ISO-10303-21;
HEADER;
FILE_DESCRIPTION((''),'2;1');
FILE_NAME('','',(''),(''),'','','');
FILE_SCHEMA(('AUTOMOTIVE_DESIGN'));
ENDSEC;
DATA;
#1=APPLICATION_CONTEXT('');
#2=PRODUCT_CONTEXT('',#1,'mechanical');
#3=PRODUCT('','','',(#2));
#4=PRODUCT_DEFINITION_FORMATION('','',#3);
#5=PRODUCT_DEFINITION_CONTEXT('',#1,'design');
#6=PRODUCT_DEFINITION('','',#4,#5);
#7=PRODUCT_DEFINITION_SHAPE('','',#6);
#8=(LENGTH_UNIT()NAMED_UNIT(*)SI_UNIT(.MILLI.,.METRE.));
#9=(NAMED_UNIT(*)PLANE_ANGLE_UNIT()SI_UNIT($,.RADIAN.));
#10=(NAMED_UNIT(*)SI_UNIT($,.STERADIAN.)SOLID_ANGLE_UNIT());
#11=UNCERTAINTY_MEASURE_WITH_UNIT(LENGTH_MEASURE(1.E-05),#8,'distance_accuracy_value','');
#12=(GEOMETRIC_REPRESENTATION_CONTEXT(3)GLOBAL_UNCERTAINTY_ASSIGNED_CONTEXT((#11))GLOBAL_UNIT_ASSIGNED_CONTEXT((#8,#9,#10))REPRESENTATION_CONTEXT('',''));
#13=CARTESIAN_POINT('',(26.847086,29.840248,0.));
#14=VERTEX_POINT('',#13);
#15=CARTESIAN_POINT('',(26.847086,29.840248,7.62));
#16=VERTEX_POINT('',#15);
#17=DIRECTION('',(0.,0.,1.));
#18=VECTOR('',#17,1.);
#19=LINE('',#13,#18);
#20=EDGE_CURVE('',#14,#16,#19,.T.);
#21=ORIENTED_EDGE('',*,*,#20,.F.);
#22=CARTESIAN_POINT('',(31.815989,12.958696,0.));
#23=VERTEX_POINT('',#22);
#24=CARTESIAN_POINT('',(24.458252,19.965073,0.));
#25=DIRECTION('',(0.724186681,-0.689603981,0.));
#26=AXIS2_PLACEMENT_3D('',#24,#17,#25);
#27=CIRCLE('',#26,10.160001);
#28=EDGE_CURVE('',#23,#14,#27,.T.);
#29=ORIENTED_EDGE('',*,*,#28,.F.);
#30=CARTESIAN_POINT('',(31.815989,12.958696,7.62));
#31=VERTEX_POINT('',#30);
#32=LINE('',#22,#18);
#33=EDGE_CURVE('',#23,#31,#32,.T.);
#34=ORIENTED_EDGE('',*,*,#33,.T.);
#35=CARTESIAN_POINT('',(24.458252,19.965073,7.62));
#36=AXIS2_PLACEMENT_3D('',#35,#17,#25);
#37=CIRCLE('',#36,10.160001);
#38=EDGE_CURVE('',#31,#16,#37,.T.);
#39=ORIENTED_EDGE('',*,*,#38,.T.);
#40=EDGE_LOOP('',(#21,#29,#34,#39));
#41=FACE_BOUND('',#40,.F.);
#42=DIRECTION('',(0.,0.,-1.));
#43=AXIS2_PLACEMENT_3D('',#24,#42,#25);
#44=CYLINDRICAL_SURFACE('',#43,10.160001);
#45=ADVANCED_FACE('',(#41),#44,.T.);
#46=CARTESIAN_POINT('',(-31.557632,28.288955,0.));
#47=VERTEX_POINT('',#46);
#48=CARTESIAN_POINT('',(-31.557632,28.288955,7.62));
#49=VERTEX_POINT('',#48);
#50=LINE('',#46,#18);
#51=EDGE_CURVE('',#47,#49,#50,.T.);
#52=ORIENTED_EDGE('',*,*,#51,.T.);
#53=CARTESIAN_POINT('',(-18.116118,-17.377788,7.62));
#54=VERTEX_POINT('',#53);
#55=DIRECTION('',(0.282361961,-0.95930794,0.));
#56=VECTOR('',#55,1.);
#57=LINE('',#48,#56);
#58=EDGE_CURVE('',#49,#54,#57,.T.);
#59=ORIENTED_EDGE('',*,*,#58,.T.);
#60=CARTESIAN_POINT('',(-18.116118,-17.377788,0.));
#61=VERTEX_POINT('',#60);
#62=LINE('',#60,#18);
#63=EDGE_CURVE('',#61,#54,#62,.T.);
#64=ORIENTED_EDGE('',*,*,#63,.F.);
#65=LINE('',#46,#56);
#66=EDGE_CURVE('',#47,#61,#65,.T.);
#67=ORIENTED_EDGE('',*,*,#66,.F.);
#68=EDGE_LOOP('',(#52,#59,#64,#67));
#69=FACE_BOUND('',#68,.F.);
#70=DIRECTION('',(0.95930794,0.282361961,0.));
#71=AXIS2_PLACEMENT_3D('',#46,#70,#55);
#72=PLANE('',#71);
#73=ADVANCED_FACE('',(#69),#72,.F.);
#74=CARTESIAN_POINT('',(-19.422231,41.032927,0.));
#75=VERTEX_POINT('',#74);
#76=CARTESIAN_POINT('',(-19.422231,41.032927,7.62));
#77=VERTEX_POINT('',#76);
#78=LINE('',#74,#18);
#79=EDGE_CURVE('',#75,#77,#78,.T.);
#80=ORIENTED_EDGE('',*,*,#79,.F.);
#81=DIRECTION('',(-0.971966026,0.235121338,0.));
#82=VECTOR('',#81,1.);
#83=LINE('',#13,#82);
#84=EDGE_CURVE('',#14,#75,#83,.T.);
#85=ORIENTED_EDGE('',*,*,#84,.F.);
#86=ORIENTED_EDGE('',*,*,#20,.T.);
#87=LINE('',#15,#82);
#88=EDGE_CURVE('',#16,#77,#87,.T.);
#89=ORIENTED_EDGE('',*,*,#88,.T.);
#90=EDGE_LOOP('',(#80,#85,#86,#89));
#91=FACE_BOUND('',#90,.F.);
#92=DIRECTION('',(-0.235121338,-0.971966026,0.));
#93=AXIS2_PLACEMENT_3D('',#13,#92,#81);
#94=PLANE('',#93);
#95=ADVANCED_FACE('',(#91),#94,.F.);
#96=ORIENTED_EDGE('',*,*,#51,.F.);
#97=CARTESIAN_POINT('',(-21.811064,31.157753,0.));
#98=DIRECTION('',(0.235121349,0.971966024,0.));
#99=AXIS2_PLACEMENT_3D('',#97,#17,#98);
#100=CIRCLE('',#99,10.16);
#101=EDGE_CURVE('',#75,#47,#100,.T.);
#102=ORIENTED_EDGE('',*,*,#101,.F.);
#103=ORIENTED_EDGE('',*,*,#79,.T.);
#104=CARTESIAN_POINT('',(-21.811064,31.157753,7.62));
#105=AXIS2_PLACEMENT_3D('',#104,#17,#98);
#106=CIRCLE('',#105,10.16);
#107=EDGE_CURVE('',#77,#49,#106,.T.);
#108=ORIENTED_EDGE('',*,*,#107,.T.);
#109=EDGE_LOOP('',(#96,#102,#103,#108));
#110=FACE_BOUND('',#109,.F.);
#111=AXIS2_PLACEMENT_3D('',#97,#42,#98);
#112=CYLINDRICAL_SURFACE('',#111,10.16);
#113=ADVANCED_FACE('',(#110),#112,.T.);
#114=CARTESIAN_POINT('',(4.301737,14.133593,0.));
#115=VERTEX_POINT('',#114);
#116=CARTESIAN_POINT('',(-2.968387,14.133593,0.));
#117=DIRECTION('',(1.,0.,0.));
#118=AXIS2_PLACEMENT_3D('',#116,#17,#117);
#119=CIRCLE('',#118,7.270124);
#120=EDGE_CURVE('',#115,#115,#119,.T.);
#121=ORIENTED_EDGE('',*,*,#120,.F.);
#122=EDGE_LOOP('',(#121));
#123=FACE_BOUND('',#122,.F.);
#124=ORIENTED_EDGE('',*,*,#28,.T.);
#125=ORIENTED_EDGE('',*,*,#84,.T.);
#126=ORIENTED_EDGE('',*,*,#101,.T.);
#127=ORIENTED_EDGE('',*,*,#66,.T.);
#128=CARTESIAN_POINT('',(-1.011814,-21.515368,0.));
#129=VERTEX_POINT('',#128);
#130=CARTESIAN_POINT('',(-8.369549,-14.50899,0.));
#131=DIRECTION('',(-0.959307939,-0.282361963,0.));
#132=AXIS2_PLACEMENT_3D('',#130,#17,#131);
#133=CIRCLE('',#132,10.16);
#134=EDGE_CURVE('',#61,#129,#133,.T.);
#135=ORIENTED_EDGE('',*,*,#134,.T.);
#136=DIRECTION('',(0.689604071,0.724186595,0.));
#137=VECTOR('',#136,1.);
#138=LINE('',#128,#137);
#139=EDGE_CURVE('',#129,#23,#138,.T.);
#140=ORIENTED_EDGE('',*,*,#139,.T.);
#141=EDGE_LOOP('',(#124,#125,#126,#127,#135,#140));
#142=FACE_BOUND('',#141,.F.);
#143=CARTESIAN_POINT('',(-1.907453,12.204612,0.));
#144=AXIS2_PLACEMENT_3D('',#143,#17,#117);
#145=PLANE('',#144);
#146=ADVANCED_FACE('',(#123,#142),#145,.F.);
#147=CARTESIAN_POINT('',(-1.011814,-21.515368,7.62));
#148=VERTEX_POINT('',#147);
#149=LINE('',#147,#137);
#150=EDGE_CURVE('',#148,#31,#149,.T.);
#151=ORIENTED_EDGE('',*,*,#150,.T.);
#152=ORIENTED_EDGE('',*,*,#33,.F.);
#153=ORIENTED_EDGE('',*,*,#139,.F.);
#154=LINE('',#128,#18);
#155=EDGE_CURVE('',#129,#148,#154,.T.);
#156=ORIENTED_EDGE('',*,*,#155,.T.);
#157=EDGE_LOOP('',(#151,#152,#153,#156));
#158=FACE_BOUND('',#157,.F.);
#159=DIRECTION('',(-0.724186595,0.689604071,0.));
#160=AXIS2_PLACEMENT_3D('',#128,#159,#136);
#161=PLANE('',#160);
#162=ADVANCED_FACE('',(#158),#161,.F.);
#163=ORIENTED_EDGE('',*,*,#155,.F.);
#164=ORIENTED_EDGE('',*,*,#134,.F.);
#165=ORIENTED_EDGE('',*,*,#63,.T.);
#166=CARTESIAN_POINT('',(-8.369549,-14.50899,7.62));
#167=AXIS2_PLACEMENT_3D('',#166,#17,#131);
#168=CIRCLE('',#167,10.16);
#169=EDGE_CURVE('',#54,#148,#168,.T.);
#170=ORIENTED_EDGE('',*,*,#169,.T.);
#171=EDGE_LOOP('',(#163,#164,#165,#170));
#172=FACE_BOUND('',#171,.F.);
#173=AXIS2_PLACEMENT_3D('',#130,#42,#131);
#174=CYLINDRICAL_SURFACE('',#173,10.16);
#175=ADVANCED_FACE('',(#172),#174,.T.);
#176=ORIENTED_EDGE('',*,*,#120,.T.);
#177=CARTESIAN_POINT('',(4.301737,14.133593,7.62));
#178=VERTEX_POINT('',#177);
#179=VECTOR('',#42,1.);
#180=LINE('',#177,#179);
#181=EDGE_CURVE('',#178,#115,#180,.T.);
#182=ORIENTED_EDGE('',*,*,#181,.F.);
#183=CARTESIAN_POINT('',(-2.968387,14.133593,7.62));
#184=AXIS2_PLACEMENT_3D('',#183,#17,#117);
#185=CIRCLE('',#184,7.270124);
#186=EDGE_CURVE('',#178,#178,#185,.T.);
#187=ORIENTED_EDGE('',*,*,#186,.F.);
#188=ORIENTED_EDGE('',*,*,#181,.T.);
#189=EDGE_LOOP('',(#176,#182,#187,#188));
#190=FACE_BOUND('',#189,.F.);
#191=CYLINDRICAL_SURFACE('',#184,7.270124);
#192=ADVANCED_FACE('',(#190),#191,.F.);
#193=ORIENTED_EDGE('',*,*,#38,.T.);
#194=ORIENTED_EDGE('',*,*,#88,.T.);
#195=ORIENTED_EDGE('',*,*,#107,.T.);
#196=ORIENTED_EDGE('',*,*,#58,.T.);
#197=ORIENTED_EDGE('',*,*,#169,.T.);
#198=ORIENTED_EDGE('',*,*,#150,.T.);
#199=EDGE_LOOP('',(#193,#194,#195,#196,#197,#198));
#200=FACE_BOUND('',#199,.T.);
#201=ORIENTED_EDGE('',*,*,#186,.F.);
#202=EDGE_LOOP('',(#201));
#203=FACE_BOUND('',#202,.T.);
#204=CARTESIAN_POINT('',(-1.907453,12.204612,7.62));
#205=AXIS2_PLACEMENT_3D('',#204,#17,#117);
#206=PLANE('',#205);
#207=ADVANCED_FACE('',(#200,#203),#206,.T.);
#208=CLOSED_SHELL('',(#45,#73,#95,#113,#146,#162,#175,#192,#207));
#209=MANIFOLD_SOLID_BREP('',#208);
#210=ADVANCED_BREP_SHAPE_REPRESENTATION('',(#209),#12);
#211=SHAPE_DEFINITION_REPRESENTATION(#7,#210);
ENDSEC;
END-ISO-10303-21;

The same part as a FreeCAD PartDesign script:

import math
import FreeCAD as App
import Part
import Sketcher
from FreeCAD import Vector
Q = App.Units.Quantity

doc = App.newDocument("Part")
body = doc.addObject("PartDesign::Body", "Body")

sketch1 = body.newObject("Sketcher::SketchObject", "Sketch")
sketch1.AttachmentSupport = (doc.getObject("XY_Plane"), [""])
sketch1.MapMode = "FlatFace"
sketch1.addGeometry(Part.ArcOfCircle(Part.Circle(Vector(-22, 31, 0), Vector(0, 0, 1), 10), math.radians(76), math.radians(196)), False)
sketch1.addGeometry(Part.LineSegment(Vector(-32, 28, 0), Vector(-18, -17, 0)), False)
sketch1.addGeometry(Part.ArcOfCircle(Part.Circle(Vector(-8, -15, 0), Vector(0, 0, 1), 10), math.radians(-164), math.radians(-44)), False)
sketch1.addGeometry(Part.LineSegment(Vector(-1, -22, 0), Vector(32, 13, 0)), False)
sketch1.addGeometry(Part.ArcOfCircle(Part.Circle(Vector(24, 20, 0), Vector(0, 0, 1), 10), math.radians(-44), math.radians(76)), False)
sketch1.addGeometry(Part.LineSegment(Vector(27, 30, 0), Vector(-19, 41, 0)), False)
sketch1.addConstraint(Sketcher.Constraint("Tangent", 0, 2, 1, 1))
sketch1.addConstraint(Sketcher.Constraint("Tangent", 1, 2, 2, 1))
sketch1.addConstraint(Sketcher.Constraint("Tangent", 2, 2, 3, 1))
sketch1.addConstraint(Sketcher.Constraint("Tangent", 3, 2, 4, 1))
sketch1.addConstraint(Sketcher.Constraint("Tangent", 4, 2, 5, 1))
sketch1.addConstraint(Sketcher.Constraint("Tangent", 5, 2, 0, 1))
sketch1.addConstraint(Sketcher.Constraint("Equal", 0, 2))
sketch1.addConstraint(Sketcher.Constraint("Equal", 2, 4))
sketch1.addConstraint(Sketcher.Constraint("Equal", 1, 3))
sketch1.addConstraint(Sketcher.Constraint("Equal", 3, 5))
sketch1.addConstraint(Sketcher.Constraint("Radius", 0, Q("0.4 in")))
sketch1.addConstraint(Sketcher.Constraint("DistanceY", 2, 2, 0, 2, Q("1.9608001 in")))
sketch1.addConstraint(Sketcher.Constraint("DistanceX", 2, 3, 4, 3, Q("32.827801 mm")))
sketch1.addConstraint(Sketcher.Constraint("DistanceX", 2, 3, -1, 1, Q("8.369549 mm")))
sketch1.addConstraint(Sketcher.Constraint("DistanceY", 2, 3, -1, 1, Q("14.50899 mm")))
pad1 = body.newObject("PartDesign::Pad", "Pad")
pad1.Profile = sketch1
pad1.Length = Q("0.3 in")

sketch2 = body.newObject("Sketcher::SketchObject", "Sketch001")
sketch2.AttachmentSupport = (doc.getObject("XY_Plane"), [""])
sketch2.MapMode = "FlatFace"
sketch2.AttachmentOffset = App.Placement(Vector(0, 0, 0.3 * 25.4), App.Rotation())
sketch2.addGeometry(Part.Circle(Vector(-3, 14, 0), Vector(0, 0, 1), 7), False)
sketch2.addConstraint(Sketcher.Constraint("Diameter", 0, Q("14.540248 mm")))
sketch2.addConstraint(Sketcher.Constraint("DistanceX", 0, 3, -1, 1, Q("2.968387 mm")))
sketch2.addConstraint(Sketcher.Constraint("DistanceY", -1, 1, 0, 3, Q("14.133593 mm")))
pocket1 = body.newObject("PartDesign::Pocket", "Pocket")
pocket1.Profile = sketch2
pocket1.Length = Q("1 in")

doc.recompute()
